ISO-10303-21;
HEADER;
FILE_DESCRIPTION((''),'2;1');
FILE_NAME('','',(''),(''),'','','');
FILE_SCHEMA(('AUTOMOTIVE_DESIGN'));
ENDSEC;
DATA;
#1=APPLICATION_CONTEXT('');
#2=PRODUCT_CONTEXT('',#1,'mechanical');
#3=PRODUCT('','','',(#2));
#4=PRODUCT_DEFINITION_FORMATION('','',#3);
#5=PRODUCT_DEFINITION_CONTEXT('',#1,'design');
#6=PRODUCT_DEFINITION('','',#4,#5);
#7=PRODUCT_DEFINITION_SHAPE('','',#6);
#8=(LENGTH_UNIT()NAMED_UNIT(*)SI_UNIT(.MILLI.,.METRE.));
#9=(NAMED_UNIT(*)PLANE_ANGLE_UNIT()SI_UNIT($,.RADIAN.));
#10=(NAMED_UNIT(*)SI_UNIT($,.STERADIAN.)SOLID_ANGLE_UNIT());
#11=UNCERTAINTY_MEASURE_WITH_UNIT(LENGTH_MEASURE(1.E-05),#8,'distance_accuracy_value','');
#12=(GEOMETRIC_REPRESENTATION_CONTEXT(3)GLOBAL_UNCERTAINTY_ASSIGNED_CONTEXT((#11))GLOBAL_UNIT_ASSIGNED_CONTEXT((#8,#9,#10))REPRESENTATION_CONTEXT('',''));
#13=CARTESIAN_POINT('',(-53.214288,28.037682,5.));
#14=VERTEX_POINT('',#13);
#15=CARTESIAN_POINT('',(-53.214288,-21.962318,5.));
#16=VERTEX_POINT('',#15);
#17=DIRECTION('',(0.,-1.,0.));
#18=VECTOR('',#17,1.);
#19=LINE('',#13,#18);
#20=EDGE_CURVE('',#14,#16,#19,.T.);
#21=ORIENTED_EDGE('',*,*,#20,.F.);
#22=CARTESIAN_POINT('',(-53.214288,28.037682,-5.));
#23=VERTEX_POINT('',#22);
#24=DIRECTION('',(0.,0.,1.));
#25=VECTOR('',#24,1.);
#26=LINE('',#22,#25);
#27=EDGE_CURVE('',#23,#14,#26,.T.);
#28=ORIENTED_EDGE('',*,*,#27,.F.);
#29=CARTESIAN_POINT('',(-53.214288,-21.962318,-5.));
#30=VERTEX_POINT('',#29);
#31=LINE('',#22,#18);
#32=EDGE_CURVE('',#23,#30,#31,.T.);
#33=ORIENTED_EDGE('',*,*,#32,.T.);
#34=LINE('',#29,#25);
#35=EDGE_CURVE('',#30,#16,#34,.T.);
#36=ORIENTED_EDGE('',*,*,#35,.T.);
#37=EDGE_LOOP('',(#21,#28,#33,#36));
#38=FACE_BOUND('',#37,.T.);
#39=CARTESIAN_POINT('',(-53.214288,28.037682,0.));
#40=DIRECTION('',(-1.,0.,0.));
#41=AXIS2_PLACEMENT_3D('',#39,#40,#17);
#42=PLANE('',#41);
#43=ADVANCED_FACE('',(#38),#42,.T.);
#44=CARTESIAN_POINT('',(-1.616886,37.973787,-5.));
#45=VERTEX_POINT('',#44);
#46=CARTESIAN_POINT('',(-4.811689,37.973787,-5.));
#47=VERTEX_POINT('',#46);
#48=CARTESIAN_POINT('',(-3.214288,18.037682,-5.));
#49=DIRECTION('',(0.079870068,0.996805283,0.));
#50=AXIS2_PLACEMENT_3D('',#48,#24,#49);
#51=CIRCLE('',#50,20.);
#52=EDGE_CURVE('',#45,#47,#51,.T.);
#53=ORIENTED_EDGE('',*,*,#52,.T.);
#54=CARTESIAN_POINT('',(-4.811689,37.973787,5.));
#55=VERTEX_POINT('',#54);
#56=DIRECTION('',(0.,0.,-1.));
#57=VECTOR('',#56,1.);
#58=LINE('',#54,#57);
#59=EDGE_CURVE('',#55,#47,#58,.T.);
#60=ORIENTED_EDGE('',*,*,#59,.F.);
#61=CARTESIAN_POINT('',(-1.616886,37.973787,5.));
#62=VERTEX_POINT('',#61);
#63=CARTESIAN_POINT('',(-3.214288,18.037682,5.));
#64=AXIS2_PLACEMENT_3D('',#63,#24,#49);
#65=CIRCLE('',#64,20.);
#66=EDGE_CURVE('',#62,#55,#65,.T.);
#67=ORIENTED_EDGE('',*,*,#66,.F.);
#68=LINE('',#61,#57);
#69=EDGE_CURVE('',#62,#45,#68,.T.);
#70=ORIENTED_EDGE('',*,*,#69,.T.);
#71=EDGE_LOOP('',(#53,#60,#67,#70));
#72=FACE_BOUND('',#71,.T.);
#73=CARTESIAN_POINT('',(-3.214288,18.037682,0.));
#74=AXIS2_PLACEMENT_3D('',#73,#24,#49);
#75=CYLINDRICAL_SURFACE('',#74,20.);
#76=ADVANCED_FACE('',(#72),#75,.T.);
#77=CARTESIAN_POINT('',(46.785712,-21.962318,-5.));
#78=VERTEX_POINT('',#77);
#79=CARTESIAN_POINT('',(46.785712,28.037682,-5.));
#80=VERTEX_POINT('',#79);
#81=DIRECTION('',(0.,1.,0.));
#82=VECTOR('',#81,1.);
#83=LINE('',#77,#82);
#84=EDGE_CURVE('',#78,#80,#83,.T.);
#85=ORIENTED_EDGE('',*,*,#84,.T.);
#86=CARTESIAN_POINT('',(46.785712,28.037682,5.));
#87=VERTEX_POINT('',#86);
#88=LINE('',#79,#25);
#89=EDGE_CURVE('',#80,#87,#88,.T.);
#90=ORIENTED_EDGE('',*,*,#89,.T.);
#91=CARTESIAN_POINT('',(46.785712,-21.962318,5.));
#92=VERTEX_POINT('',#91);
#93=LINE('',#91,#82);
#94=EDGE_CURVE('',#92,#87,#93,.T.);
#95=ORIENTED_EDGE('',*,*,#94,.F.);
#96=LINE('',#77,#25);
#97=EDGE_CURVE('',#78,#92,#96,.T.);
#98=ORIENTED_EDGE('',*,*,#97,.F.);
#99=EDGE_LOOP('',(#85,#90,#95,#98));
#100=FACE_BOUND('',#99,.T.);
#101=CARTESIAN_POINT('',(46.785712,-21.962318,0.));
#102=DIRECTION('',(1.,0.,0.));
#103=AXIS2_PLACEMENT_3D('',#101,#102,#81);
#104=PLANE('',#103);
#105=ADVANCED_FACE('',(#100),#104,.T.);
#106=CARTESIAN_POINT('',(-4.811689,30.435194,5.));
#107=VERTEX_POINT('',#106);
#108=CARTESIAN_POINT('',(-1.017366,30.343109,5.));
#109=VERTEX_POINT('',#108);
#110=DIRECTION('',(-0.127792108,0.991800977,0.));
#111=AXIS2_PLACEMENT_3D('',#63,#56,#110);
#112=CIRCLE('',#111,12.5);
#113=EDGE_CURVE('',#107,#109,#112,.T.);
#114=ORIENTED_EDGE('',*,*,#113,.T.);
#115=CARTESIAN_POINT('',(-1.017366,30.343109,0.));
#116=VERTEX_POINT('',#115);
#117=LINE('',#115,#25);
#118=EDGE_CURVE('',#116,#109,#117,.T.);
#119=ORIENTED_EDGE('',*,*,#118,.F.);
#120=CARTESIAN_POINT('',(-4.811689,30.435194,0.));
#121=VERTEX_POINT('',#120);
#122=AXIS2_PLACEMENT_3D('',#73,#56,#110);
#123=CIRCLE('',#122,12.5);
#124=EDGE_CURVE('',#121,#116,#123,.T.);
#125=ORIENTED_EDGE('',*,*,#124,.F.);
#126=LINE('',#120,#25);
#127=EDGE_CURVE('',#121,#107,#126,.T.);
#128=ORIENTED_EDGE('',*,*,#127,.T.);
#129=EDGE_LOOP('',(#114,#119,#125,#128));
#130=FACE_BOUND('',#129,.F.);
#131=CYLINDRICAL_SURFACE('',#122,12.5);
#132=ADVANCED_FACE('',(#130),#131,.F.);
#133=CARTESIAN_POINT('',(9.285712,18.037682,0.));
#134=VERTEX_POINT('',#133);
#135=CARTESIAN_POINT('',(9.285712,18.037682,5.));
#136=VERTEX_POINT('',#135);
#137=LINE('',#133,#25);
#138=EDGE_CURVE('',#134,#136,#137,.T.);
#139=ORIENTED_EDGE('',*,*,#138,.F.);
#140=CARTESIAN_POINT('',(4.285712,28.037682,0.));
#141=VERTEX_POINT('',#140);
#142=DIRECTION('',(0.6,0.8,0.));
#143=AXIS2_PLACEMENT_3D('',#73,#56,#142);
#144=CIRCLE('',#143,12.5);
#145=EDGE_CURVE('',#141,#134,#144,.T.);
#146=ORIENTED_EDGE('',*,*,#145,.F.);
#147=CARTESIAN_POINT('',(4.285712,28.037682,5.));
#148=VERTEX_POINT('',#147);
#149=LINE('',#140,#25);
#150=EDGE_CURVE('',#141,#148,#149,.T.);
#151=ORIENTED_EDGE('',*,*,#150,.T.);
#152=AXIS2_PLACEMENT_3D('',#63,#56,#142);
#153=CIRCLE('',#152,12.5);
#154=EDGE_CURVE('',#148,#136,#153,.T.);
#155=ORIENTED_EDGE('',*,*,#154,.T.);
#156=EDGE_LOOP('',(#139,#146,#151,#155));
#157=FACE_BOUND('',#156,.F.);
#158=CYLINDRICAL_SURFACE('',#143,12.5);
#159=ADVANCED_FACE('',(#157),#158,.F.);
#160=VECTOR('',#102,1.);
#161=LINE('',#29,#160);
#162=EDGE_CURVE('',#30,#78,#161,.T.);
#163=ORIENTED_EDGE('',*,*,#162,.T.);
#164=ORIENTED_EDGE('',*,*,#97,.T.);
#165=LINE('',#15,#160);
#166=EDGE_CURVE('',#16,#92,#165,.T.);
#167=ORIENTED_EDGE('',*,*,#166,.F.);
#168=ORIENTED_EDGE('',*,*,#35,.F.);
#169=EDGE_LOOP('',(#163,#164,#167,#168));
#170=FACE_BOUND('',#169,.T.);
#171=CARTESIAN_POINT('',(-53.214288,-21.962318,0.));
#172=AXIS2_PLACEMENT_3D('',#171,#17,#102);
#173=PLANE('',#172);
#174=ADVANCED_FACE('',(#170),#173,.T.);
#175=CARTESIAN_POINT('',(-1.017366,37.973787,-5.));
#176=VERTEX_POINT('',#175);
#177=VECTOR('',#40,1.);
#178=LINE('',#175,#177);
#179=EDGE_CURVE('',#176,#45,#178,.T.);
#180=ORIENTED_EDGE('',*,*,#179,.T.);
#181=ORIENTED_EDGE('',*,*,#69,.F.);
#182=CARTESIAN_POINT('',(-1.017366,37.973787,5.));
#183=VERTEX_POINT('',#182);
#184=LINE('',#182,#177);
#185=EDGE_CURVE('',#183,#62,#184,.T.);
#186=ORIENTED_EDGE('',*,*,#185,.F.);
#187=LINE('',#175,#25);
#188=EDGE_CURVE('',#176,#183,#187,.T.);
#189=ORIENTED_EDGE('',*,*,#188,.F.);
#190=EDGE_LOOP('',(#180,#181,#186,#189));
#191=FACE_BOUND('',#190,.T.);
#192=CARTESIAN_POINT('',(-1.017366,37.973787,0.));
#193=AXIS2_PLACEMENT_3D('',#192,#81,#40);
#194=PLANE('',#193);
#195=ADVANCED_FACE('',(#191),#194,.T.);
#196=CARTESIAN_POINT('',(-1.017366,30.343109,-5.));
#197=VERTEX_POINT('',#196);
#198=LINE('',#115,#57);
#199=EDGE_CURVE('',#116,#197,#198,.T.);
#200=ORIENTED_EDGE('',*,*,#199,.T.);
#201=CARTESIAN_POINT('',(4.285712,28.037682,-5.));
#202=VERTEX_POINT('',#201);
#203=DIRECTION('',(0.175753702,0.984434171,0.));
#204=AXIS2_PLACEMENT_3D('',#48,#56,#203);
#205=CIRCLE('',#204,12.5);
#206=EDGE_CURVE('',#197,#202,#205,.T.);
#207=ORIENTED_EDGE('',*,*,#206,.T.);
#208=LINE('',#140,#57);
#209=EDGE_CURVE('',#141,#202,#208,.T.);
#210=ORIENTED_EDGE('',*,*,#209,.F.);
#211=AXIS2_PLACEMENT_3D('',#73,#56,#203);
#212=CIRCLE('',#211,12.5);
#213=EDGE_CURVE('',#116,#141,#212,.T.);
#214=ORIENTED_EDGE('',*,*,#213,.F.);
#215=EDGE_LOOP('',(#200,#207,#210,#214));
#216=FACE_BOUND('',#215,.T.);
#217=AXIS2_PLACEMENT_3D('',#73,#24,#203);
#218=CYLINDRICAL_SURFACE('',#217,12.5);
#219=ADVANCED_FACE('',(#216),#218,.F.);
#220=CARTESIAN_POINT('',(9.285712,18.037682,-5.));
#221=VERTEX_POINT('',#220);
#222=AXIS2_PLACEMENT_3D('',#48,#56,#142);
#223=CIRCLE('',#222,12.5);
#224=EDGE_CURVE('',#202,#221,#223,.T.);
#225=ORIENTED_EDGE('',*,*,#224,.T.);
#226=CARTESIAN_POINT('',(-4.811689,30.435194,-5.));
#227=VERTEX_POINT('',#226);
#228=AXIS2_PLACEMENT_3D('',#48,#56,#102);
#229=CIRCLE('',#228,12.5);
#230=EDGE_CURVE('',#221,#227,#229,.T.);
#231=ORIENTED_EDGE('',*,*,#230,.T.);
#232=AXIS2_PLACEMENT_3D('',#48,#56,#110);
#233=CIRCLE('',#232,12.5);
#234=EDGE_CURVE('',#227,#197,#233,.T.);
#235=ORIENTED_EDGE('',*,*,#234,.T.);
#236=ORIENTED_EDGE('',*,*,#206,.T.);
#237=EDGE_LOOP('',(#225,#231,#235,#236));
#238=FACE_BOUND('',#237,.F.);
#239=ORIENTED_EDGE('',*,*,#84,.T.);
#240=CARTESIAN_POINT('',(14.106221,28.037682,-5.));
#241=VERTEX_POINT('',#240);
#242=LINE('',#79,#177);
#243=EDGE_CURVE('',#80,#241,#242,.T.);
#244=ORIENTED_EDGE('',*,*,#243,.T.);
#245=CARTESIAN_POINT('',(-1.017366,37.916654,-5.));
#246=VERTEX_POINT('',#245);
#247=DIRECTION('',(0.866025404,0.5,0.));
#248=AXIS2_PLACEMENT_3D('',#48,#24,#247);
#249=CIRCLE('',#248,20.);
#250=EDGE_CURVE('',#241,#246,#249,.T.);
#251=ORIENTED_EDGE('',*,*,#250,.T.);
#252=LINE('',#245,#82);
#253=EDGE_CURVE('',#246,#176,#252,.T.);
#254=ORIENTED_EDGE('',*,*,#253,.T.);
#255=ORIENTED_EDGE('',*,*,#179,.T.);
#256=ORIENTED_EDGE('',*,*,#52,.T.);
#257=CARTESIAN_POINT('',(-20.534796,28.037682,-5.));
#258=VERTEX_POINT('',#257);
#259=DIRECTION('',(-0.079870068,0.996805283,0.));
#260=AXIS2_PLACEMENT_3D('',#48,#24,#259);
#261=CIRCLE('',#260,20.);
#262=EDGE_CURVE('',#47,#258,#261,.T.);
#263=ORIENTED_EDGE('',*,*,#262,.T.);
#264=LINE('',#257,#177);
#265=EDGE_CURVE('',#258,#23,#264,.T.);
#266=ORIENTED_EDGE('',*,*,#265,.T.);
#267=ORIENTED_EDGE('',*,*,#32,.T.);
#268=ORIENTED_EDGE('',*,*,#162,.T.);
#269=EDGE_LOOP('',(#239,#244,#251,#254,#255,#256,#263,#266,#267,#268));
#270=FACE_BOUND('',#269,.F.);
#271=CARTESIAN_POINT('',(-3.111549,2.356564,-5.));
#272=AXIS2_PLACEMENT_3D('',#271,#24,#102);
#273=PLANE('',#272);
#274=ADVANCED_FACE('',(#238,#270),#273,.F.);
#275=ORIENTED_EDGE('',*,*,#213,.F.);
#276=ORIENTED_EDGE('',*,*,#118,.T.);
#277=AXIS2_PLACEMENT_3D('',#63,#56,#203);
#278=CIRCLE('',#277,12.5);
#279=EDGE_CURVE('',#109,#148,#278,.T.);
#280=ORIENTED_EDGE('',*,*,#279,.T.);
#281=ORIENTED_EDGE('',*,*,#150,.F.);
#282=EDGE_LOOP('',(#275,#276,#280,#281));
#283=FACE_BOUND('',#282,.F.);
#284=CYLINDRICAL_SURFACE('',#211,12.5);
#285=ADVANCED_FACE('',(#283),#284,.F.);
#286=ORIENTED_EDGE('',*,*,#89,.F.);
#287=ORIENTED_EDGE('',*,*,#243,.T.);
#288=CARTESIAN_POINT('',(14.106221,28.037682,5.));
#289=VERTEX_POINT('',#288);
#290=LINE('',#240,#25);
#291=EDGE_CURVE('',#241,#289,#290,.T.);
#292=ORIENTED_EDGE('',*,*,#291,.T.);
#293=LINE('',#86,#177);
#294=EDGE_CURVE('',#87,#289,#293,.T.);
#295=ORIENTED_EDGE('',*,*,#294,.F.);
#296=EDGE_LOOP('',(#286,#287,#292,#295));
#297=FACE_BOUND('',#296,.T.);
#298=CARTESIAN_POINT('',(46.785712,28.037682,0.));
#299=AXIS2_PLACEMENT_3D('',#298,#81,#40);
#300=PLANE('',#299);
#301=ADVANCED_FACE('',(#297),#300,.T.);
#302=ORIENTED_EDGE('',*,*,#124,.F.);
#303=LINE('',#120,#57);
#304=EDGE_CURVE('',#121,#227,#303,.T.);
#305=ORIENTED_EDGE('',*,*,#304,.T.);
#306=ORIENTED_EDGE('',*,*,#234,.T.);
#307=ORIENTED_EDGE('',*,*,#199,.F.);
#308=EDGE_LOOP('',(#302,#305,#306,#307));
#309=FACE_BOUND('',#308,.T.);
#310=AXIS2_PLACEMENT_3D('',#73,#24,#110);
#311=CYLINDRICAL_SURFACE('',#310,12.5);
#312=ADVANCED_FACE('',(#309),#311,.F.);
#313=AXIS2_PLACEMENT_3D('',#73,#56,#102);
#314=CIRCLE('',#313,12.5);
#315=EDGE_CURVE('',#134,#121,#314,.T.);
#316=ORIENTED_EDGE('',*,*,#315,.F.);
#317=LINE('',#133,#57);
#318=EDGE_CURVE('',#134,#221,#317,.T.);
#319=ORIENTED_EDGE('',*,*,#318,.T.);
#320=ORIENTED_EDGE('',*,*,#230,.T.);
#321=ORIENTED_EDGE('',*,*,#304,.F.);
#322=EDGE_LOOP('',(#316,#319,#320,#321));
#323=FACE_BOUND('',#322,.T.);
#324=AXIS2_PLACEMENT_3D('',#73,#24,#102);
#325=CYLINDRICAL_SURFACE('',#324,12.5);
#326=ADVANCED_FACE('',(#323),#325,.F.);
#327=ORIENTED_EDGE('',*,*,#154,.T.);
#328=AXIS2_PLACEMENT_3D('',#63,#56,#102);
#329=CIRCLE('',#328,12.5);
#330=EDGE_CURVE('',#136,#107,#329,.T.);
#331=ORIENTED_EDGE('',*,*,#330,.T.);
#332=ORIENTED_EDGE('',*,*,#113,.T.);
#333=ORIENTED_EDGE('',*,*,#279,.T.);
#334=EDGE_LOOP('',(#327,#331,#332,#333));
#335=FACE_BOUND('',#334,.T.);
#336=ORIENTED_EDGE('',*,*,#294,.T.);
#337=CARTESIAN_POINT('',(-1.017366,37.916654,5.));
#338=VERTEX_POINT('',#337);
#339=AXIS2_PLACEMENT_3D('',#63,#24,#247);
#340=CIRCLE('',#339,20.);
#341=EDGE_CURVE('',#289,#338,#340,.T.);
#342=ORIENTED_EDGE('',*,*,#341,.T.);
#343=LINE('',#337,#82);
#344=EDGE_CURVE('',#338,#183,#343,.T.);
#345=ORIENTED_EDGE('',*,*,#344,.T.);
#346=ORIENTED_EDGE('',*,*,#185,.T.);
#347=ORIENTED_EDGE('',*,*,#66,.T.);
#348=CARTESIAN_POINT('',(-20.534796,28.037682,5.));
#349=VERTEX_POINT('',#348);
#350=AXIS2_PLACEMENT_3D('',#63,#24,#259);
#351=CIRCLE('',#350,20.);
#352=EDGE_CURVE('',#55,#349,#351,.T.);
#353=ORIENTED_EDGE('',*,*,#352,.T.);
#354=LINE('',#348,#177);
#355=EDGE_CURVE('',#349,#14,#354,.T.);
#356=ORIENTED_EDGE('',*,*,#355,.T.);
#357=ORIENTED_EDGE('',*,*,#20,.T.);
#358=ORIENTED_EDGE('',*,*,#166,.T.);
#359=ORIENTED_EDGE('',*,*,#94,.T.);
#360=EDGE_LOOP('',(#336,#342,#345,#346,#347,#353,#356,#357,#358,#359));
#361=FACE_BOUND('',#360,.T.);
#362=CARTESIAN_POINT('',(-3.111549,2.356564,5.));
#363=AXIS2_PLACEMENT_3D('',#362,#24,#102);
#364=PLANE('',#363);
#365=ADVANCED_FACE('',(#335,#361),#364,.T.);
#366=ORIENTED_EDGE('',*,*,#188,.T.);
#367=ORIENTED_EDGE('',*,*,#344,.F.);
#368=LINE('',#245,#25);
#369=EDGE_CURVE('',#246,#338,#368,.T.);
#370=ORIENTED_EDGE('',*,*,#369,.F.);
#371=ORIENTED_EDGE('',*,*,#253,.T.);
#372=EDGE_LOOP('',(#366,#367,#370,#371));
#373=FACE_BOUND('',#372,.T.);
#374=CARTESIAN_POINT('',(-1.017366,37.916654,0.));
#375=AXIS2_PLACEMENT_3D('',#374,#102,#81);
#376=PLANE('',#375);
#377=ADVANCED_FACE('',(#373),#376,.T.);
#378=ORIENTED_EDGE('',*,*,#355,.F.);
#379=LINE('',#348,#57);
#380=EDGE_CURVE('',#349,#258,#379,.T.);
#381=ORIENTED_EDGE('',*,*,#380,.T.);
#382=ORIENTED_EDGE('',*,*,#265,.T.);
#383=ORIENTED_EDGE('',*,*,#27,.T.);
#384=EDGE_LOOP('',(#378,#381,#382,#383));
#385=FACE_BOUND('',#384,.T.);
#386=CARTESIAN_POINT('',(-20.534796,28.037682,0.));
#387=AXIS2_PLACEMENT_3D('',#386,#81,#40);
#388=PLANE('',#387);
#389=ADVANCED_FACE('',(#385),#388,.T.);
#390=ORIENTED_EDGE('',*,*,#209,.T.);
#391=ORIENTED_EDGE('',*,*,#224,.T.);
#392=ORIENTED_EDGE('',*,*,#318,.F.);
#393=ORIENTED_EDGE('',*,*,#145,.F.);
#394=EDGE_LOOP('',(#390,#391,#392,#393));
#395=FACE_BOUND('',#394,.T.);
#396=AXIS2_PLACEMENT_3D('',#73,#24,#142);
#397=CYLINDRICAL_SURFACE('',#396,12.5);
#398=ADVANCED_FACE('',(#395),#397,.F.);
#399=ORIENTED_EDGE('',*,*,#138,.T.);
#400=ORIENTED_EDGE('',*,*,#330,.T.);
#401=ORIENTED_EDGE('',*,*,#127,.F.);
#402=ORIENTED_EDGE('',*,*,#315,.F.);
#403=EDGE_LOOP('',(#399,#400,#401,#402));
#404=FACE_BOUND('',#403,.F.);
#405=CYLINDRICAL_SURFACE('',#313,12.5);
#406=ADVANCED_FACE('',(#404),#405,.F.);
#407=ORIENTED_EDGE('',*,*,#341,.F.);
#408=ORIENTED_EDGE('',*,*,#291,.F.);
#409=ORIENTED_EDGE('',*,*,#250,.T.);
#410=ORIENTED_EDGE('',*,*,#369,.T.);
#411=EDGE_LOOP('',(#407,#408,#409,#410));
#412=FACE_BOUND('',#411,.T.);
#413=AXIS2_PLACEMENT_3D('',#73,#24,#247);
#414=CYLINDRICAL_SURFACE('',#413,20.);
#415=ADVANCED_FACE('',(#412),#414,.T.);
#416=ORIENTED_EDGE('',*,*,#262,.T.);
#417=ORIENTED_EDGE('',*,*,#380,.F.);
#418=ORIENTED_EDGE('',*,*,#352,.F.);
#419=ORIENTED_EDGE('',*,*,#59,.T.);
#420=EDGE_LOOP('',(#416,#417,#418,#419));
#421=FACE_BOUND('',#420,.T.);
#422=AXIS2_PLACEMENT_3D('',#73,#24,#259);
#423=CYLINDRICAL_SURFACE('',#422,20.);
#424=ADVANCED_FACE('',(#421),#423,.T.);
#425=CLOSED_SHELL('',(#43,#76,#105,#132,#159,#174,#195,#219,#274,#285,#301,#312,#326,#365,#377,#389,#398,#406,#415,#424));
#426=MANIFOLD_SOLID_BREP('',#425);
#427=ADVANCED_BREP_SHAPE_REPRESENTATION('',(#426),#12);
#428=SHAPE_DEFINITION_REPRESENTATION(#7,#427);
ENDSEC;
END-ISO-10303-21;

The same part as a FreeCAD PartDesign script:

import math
import FreeCAD as App
import Part
import Sketcher

V = App.Vector

doc = App.newDocument("Part")
body = doc.addObject("PartDesign::Body", "Body")

# Sketch on XY plane
sketch1 = body.newObject("Sketcher::SketchObject", "Sketch")
sketch1.AttachmentSupport = (doc.getObject("XY_Plane"), [""])
sketch1.MapMode = "FlatFace"
sketch1.addGeometry([
    Part.LineSegment(V(-20.534796, 28.037682, 0), V(-53.214288, 28.037682, 0)),  # 0
    Part.LineSegment(V(-53.214288, 28.037682, 0), V(-53.214288, -21.962318, 0)),  # 1
    Part.LineSegment(V(-53.214288, -21.962318, 0), V(46.785712, -21.962318, 0)),  # 2
    Part.LineSegment(V(46.785712, -21.962318, 0), V(46.785712, 28.037682, 0)),  # 3
    Part.LineSegment(V(46.785712, 28.037682, 0), V(14.106221, 28.037682, 0)),  # 4
    Part.ArcOfCircle(Part.Circle(V(-3.214288, 18.037682, 0), V(0, 0, 1), 20), math.radians(30), math.radians(83.693558)),  # 5
    Part.LineSegment(V(-1.017366, 37.916654, 0), V(-1.017366, 37.973787, 0)),  # 6
    Part.LineSegment(V(-1.017366, 37.973787, 0), V(-1.616886, 37.973787, 0)),  # 7
    Part.ArcOfCircle(Part.Circle(V(-3.214288, 18.037682, 0), V(0, 0, 1), 20), math.radians(85.418903), math.radians(94.581097)),  # 8
    Part.ArcOfCircle(Part.Circle(V(-3.214288, 18.037682, 0), V(0, 0, 1), 20), math.radians(94.581097), math.radians(150)),  # 9
    Part.ArcOfCircle(Part.Circle(V(-3.214288, 18.037682, 0), V(0, 0, 1), 12.5), math.radians(0), math.radians(53.130102)),  # 10
    Part.ArcOfCircle(Part.Circle(V(-3.214288, 18.037682, 0), V(0, 0, 1), 12.5), math.radians(97.342025), math.radians(360)),  # 11
    Part.ArcOfCircle(Part.Circle(V(-3.214288, 18.037682, 0), V(0, 0, 1), 12.5), math.radians(79.877478), math.radians(97.342025)),  # 12
    Part.ArcOfCircle(Part.Circle(V(-3.214288, 18.037682, 0), V(0, 0, 1), 12.5), math.radians(53.130102), math.radians(79.877478)),  # 13
], False)
sketch1.addConstraint([
    Sketcher.Constraint("Coincident", 0, 2, 1, 1),
    Sketcher.Constraint("Coincident", 1, 2, 2, 1),
    Sketcher.Constraint("Coincident", 2, 2, 3, 1),
    Sketcher.Constraint("Coincident", 3, 2, 4, 1),
    Sketcher.Constraint("Coincident", 4, 2, 5, 1),
    Sketcher.Constraint("Coincident", 5, 2, 6, 1),
    Sketcher.Constraint("Coincident", 6, 2, 7, 1),
    Sketcher.Constraint("Coincident", 7, 2, 8, 1),
    Sketcher.Constraint("Tangent", 8, 2, 9, 1),
    Sketcher.Constraint("Coincident", 9, 2, 0, 1),
    Sketcher.Constraint("Tangent", 10, 1, 11, 2),
    Sketcher.Constraint("Tangent", 11, 1, 12, 2),
    Sketcher.Constraint("Tangent", 12, 1, 13, 2),
    Sketcher.Constraint("Tangent", 13, 1, 10, 2),
    Sketcher.Constraint("Horizontal", 0),
    Sketcher.Constraint("Vertical", 1),
    Sketcher.Constraint("Horizontal", 2),
    Sketcher.Constraint("Vertical", 3),
    Sketcher.Constraint("Horizontal", 4),
    Sketcher.Constraint("Vertical", 6),
    Sketcher.Constraint("Horizontal", 7),
    Sketcher.Constraint("Coincident", 8, 3, 5, 3),
    Sketcher.Constraint("Coincident", 10, 3, 5, 3),
    Sketcher.Constraint("Equal", 5, 8),
    Sketcher.Constraint("Equal", 8, 9),
    Sketcher.Constraint("Equal", 10, 11),
    Sketcher.Constraint("Horizontal", 0, 2, 3, 2),
    Sketcher.Constraint("Horizontal", 7, 2, 8, 2),
    Sketcher.Constraint("Horizontal", 13, 3, 10, 1),
    Sketcher.Constraint("Horizontal", 9, 2, 13, 1),
    Sketcher.Constraint("Vertical", 8, 2, 11, 1),
    Sketcher.Constraint("Vertical", 6, 2, 12, 1),
    Sketcher.Constraint("Equal", 0, 4),
    Sketcher.Constraint("Radius", 5, 20.0),
    Sketcher.Constraint("Radius", 10, 12.5),
    Sketcher.Constraint("DistanceX", 2, 1, 2, 2, 100.0),
    Sketcher.Constraint("DistanceY", 1, 2, 1, 1, 50.0),
    Sketcher.Constraint("DistanceY", 8, 3, 0, 2, 10.0),
    Sketcher.Constraint("DistanceX", 7, 2, 7, 1, 0.59952),
    Sketcher.Constraint("DistanceX", 8, 3, 7, 2, 1.597401),
    Sketcher.Constraint("DistanceY", -1, 1, 5, 3, 18.037682),
    Sketcher.Constraint("DistanceX", -1, 1, 4, 2, 14.106221),
])
pad1 = body.newObject("PartDesign::Pad", "Pad")
pad1.Profile = sketch1
pad1.Length = 10
pad1.Midplane = True

doc.recompute()
